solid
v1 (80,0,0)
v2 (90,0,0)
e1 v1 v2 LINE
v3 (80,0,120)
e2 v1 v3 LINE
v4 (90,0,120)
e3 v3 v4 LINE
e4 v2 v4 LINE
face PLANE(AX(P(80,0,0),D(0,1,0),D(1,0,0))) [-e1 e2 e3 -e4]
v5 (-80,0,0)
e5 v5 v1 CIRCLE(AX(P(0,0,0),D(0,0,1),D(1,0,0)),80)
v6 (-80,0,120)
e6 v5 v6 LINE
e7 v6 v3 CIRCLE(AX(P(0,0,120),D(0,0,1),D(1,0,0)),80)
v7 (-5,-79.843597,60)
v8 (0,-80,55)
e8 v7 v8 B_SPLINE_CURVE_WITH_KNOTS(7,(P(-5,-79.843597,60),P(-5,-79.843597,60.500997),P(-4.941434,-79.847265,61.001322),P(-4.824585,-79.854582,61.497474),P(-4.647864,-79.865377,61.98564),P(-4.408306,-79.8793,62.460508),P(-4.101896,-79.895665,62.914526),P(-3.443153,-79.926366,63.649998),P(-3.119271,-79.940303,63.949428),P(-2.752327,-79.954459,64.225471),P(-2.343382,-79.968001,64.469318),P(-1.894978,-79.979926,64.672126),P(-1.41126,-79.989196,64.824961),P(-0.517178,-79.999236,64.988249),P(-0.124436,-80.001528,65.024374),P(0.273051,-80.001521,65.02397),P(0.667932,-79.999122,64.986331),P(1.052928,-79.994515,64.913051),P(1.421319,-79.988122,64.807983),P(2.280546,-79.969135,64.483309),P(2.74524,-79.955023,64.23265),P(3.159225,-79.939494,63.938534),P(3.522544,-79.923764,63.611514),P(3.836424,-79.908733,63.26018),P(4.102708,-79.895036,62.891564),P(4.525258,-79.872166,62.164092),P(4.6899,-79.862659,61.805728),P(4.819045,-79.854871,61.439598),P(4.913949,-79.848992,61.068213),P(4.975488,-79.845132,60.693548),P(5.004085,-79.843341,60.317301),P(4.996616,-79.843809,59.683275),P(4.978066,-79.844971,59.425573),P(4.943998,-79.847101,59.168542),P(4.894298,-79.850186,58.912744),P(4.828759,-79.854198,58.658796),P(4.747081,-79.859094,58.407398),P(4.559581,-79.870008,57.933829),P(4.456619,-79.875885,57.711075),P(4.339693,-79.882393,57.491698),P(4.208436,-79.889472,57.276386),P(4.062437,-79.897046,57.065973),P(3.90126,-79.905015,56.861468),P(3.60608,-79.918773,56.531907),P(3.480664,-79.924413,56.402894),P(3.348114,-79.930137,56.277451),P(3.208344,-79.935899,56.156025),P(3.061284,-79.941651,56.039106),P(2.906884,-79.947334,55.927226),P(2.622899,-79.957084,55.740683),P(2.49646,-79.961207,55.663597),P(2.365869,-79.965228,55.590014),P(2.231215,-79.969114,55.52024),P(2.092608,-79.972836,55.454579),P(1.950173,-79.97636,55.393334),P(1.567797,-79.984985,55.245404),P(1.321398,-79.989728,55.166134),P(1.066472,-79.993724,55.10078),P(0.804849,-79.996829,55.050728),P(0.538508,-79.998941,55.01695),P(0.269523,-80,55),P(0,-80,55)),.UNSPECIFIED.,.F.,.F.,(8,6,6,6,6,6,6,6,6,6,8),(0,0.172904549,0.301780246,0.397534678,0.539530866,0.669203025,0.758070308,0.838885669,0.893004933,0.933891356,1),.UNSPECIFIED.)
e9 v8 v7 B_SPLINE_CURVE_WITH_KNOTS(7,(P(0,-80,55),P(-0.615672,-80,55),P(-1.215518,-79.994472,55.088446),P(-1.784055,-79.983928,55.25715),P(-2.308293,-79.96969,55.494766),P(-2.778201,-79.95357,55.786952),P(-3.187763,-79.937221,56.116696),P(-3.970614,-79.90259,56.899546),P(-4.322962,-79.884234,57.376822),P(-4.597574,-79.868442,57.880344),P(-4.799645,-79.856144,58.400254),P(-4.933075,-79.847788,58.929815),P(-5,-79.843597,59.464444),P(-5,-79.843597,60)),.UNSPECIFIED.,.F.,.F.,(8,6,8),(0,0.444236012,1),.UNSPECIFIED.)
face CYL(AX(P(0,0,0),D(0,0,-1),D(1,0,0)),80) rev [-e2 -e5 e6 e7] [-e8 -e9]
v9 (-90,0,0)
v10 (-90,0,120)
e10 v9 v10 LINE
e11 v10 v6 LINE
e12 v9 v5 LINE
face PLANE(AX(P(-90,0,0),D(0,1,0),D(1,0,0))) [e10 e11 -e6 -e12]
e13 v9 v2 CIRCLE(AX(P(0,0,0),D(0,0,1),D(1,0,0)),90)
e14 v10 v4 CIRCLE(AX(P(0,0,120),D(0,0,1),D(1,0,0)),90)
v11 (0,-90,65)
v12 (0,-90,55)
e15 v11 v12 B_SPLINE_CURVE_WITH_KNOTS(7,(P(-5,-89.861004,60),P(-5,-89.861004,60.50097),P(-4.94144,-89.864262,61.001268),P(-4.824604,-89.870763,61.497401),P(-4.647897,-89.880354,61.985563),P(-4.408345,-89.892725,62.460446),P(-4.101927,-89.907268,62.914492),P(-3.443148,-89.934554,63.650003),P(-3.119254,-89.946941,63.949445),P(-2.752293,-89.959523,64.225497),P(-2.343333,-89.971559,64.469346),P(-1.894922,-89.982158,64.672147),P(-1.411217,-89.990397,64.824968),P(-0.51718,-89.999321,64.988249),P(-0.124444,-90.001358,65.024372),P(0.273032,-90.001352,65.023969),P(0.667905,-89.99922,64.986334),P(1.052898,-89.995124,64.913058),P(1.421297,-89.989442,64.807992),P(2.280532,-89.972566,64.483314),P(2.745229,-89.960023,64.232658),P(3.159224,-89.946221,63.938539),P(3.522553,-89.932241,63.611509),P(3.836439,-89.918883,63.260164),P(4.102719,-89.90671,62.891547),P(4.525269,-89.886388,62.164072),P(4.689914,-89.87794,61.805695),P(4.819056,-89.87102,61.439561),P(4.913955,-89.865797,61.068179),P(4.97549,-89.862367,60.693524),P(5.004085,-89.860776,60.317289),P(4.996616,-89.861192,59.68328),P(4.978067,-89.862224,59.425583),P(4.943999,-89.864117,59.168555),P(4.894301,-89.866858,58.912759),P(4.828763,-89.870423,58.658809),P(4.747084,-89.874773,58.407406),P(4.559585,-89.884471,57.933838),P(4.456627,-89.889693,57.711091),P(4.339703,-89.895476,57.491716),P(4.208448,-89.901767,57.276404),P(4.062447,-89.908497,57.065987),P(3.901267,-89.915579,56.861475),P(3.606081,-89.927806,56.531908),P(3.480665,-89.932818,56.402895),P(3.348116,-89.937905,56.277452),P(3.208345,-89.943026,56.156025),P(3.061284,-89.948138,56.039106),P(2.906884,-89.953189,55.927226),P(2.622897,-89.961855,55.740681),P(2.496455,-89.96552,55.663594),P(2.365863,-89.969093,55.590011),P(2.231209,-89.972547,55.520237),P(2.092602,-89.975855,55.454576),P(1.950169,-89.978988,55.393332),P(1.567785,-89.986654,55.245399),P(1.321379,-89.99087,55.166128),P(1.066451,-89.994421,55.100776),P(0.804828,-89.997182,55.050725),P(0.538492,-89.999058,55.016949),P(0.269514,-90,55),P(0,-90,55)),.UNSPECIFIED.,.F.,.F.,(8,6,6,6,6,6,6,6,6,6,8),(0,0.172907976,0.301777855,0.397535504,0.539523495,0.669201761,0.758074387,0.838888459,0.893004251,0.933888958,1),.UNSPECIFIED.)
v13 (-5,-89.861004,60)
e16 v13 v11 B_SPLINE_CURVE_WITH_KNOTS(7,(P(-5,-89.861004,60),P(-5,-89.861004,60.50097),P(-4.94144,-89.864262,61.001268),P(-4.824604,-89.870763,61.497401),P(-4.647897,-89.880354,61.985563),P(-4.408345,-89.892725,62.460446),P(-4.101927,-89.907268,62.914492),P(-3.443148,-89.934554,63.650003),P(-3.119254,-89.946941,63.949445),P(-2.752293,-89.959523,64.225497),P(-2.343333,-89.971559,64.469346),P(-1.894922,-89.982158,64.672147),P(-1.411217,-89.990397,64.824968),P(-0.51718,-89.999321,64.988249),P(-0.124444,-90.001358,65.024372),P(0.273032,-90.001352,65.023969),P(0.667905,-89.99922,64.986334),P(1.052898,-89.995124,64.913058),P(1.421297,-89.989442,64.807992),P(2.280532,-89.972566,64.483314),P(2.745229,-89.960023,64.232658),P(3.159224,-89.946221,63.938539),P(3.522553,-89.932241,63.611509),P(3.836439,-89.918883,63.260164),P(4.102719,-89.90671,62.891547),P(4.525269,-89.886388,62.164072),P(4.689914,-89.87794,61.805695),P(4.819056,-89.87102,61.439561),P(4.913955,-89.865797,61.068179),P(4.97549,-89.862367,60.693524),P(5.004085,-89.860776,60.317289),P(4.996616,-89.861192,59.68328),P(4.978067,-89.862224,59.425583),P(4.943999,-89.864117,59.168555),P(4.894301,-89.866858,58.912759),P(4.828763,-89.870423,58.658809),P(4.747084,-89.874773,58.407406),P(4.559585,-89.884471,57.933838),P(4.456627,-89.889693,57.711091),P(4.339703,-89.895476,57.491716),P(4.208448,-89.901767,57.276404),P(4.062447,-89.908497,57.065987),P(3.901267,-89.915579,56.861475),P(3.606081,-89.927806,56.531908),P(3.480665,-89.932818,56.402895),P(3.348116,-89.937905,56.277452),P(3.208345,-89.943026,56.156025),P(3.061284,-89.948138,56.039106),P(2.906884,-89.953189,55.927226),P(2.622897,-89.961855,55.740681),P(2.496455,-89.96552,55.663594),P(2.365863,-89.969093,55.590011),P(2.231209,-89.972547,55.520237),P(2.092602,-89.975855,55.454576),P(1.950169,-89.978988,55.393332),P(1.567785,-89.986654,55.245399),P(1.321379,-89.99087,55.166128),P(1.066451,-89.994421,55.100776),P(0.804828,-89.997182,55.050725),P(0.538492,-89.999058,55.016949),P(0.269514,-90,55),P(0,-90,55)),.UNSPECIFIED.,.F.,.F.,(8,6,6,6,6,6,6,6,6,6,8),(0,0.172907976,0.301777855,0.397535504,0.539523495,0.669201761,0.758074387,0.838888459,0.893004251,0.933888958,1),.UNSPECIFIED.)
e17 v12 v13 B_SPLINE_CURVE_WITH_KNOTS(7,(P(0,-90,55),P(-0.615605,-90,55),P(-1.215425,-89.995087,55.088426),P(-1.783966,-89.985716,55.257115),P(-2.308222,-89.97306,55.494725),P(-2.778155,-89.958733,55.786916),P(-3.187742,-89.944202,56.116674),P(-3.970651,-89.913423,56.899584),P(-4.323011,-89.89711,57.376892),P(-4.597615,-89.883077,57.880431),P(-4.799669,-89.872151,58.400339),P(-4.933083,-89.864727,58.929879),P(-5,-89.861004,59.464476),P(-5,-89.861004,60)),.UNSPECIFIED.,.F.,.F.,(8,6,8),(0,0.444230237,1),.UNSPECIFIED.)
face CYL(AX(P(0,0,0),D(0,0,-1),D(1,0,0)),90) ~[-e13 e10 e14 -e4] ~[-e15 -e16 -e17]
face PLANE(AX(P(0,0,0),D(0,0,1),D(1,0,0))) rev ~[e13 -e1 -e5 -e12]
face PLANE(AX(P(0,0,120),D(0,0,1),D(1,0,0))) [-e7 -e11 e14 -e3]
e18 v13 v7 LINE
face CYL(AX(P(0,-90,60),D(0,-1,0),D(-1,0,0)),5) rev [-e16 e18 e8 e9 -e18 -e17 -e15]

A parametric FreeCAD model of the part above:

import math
import FreeCAD as App
import Part
import Sketcher
from FreeCAD import Vector
Q = App.Units.Quantity

doc = App.newDocument("Part")
body = doc.addObject("PartDesign::Body", "Body")

# Sketch on XY plane
sketch1 = doc.addObject("Sketcher::SketchObject", "Sketch")
body.addObject(sketch1)
sketch1.AttachmentSupport = (doc.XY_Plane, [""])
sketch1.MapMode = "FlatFace"
sketch1.addGeometry([
    Part.LineSegment(Vector(90, 0, 0), Vector(80, 0, 0)),
    Part.ArcOfCircle(Part.Circle(Vector(0, 0, 0), Vector(0, 0, 1), 80), math.radians(180), math.radians(360)),
    Part.LineSegment(Vector(-80, 0, 0), Vector(-90, 0, 0)),
    Part.ArcOfCircle(Part.Circle(Vector(0, 0, 0), Vector(0, 0, 1), 90), math.radians(180), math.radians(360)),
], False)
sketch1.addConstraint([
    Sketcher.Constraint("Coincident", 0, 2, 1, 2),
    Sketcher.Constraint("Coincident", 1, 1, 2, 1),
    Sketcher.Constraint("Coincident", 2, 2, 3, 1),
    Sketcher.Constraint("Coincident", 3, 2, 0, 1),
    Sketcher.Constraint("Horizontal", 0),
    Sketcher.Constraint("Horizontal", 2),
    Sketcher.Constraint("Coincident", 1, 3, -1, 1),
    Sketcher.Constraint("Coincident", 3, 3, -1, 1),
    Sketcher.Constraint("PointOnObject", 0, 2, -1),
    Sketcher.Constraint("PointOnObject", 1, 1, -1),
    Sketcher.Constraint("Radius", 1, Q("80 mm")),
    Sketcher.Constraint("Radius", 3, Q("90 mm")),
])
pad1 = doc.addObject("PartDesign::Pad", "Pad")
body.addObject(pad1)
pad1.Profile = sketch1
pad1.Length = 120

# Sketch on XZ plane
sketch2 = doc.addObject("Sketcher::SketchObject", "Sketch001")
body.addObject(sketch2)
sketch2.AttachmentSupport = (doc.XZ_Plane, [""])
sketch2.MapMode = "FlatFace"
sketch2.AttachmentOffset = App.Placement(Vector(0, 0, 90), App.Rotation())
sketch2.addGeometry(Part.Circle(Vector(0, 60, 0), Vector(0, 0, 1), 5), False)
sketch2.addConstraint([
    Sketcher.Constraint("PointOnObject", 0, 3, -2),
    Sketcher.Constraint("Diameter", 0, Q("10 mm")),
    Sketcher.Constraint("DistanceY", -1, 1, 0, 3, Q("60 mm")),
])
pocket1 = doc.addObject("PartDesign::Pocket", "Pocket")
body.addObject(pocket1)
pocket1.Profile = sketch2
pocket1.Length = 20

doc.recompute()
